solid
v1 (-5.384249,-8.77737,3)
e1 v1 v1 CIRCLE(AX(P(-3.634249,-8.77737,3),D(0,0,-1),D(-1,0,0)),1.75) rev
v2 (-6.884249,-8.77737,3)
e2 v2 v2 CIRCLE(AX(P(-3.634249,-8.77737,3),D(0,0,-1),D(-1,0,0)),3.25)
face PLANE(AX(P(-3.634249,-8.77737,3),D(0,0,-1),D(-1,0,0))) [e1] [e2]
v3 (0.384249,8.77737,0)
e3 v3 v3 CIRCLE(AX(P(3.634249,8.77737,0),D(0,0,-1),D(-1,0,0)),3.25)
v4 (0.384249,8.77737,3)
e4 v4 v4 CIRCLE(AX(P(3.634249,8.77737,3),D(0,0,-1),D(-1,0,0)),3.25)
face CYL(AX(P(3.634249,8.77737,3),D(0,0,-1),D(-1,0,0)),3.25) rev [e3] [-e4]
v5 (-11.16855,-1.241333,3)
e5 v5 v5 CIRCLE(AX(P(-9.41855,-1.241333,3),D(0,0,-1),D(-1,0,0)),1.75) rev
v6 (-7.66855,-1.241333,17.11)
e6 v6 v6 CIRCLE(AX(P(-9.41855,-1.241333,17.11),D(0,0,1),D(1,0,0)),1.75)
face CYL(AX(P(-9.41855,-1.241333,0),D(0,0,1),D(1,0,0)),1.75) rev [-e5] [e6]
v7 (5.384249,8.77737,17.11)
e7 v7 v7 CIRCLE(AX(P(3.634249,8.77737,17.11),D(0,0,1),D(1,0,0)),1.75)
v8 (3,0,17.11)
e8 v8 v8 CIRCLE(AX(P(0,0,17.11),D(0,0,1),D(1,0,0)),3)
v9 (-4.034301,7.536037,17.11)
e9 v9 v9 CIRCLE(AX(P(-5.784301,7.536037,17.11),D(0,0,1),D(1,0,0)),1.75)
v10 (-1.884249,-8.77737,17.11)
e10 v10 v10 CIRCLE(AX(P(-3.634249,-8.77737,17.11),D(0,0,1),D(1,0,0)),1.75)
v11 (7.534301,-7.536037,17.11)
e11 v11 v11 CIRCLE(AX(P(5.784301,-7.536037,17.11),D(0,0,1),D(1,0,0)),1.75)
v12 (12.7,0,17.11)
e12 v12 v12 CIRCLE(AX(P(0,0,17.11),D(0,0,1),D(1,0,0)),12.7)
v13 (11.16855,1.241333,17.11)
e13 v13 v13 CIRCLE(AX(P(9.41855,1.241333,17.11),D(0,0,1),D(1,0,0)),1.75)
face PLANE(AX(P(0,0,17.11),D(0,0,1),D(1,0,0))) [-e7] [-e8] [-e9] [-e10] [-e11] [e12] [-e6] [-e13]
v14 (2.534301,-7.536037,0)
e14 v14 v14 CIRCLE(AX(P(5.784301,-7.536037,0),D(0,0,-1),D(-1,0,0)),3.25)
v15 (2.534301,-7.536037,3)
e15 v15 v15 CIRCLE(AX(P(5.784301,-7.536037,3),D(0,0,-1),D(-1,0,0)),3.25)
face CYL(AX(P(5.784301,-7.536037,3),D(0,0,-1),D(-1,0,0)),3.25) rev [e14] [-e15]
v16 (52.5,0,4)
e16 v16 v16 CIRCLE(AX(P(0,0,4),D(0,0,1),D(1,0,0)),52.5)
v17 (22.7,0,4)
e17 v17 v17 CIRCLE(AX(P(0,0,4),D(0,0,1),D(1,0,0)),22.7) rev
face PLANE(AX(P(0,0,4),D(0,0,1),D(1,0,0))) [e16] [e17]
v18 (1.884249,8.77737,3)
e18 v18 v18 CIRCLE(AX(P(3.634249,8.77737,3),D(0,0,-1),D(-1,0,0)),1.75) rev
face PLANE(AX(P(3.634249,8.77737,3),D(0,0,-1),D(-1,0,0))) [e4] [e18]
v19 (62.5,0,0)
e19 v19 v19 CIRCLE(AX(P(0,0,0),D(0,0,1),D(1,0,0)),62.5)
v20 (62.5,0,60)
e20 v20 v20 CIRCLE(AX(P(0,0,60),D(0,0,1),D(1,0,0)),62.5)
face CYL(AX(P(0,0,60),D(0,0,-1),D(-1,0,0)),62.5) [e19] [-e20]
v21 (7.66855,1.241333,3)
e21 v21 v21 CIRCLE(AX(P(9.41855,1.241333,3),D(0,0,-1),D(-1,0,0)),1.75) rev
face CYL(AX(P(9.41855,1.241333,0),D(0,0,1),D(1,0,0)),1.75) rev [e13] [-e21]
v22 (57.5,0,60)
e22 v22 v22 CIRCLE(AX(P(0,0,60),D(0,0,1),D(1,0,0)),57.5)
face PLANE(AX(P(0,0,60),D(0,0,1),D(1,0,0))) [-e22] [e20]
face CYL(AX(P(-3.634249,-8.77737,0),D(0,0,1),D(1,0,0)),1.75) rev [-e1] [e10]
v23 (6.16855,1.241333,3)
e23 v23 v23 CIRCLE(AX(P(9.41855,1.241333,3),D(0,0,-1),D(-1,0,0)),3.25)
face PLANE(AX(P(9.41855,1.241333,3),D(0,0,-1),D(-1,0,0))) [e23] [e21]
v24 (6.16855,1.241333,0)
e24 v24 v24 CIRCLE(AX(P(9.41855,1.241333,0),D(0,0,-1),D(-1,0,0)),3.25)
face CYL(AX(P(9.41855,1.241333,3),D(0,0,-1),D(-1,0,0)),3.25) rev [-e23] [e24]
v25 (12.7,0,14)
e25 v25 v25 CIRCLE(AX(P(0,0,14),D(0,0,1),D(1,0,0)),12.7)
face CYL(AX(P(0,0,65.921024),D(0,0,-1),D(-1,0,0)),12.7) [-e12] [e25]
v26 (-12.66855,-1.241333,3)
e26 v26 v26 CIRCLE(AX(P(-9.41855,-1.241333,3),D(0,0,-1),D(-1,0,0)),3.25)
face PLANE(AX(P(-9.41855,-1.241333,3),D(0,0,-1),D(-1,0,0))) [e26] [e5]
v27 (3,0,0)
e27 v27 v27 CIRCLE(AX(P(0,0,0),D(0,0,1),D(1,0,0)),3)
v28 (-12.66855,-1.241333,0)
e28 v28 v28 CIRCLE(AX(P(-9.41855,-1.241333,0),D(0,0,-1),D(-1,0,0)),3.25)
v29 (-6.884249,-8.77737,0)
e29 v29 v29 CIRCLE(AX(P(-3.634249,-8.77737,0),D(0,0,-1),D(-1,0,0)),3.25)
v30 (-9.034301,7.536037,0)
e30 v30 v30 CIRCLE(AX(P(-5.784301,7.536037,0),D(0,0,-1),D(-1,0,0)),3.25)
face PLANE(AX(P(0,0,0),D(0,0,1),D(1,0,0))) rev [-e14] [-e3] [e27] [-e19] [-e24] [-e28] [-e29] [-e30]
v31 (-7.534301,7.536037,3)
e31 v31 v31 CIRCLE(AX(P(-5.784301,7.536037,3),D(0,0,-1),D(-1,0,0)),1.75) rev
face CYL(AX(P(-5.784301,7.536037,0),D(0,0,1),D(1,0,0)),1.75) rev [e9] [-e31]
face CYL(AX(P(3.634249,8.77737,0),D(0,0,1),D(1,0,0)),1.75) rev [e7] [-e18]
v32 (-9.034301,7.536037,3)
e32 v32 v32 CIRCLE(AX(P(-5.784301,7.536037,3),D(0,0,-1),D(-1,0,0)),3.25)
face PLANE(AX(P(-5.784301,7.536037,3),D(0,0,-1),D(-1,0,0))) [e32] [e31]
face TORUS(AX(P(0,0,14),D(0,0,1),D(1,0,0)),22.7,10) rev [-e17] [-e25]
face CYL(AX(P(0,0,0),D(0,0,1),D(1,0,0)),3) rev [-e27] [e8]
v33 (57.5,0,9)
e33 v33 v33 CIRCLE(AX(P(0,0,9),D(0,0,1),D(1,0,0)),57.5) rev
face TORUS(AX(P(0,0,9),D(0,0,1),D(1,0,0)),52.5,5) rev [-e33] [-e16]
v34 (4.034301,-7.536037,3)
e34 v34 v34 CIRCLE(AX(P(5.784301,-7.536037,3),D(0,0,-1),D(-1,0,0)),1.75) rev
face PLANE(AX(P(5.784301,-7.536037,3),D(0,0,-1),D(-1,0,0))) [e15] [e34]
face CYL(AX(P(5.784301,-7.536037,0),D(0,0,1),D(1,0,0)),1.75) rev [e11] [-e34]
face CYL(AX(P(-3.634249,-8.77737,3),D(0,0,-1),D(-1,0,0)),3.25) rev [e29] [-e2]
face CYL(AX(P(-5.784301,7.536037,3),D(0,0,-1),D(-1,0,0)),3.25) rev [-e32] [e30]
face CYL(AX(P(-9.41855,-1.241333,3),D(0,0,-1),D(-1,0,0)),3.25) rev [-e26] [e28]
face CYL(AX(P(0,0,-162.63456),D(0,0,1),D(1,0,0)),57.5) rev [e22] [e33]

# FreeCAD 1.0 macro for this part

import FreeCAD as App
import Part
import Sketcher

V = App.Vector
Q = App.Units.Quantity


def edges_at(feature, points):
    """Names of the edges that pass closest to the given points."""
    edges = feature.Shape.Edges
    near = lambda p: min(range(len(edges)), key=lambda i: edges[i].distToShape(Part.Vertex(*p))[0])
    return sorted({f"Edge{near(p) + 1}" for p in points})

doc = App.newDocument("Part")
body = doc.addObject("PartDesign::Body", "Body")

# Sketch on XY plane
sketch1 = body.newObject("Sketcher::SketchObject", "Sketch")
sketch1.AttachmentSupport = (doc.getObject("XY_Plane"), [""])
sketch1.MapMode = "FlatFace"
sketch1.addGeometry(Part.Circle(V(0, 0, 0), V(0, 0, 1), 62.5), False)
sketch1.addConstraint([
    Sketcher.Constraint("Coincident", 0, 3, -1, 1),
    Sketcher.Constraint("Diameter", 0, Q("125 mm")),
])
pad1 = body.newObject("PartDesign::Pad", "Pad")
pad1.Profile = sketch1
pad1.Length = 60

# Sketch on XY plane
sketch2 = body.newObject("Sketcher::SketchObject", "Sketch001")
sketch2.AttachmentSupport = (doc.getObject("XY_Plane"), [""])
sketch2.MapMode = "FlatFace"
sketch2.AttachmentOffset = App.Placement(V(0, 0, 60), App.Rotation())
sketch2.addGeometry(Part.Circle(V(0, 0, 0), V(0, 0, 1), 57.5), False)
sketch2.addConstraint([
    Sketcher.Constraint("Coincident", 0, 3, -1, 1),
    Sketcher.Constraint("Diameter", 0, Q("115 mm")),
])
pocket1 = body.newObject("PartDesign::Pocket", "Pocket")
pocket1.Profile = sketch2
pocket1.Length = 56

# Sketch on XY plane
sketch3 = body.newObject("Sketcher::SketchObject", "Sketch002")
sketch3.AttachmentSupport = (doc.getObject("XY_Plane"), [""])
sketch3.MapMode = "FlatFace"
sketch3.AttachmentOffset = App.Placement(V(0, 0, 4), App.Rotation())
sketch3.addGeometry(Part.Circle(V(0, 0, 0), V(0, 0, 1), 12.7), False)
sketch3.addConstraint([
    Sketcher.Constraint("Coincident", 0, 3, -1, 1),
    Sketcher.Constraint("Diameter", 0, Q("25.4 mm")),
])
pad2 = body.newObject("PartDesign::Pad", "Pad001")
pad2.Profile = sketch3
pad2.Length = 13.11

# Sketch on XY plane
sketch4 = body.newObject("Sketcher::SketchObject", "Sketch003")
sketch4.AttachmentSupport = (doc.getObject("XY_Plane"), [""])
sketch4.MapMode = "FlatFace"
sketch4.AttachmentOffset = App.Placement(V(0, 0, 17.11), App.Rotation())
sketch4.addGeometry([
    Part.Circle(V(-5.784301, 7.536037, 0), V(0, 0, 1), 1.75),  # 0
    Part.Circle(V(-9.41855, -1.241333, 0), V(0, 0, 1), 1.75),  # 1
    Part.Circle(V(-3.634249, -8.77737, 0), V(0, 0, 1), 1.75),  # 2
    Part.Circle(V(5.784301, -7.536037, 0), V(0, 0, 1), 1.75),  # 3
    Part.Circle(V(9.41855, 1.241333, 0), V(0, 0, 1), 1.75),  # 4
    Part.Circle(V(3.634249, 8.77737, 0), V(0, 0, 1), 1.75),  # 5
    Part.Circle(V(0, 0, 0), V(0, 0, 1), 3),  # 6
], False)
sketch4.addConstraint([
    Sketcher.Constraint("Coincident", 6, 3, -1, 1),
    Sketcher.Constraint("Equal", 0, 1),
    Sketcher.Constraint("Equal", 1, 2),
    Sketcher.Constraint("Equal", 2, 3),
    Sketcher.Constraint("Equal", 3, 4),
    Sketcher.Constraint("Equal", 4, 5),
    Sketcher.Constraint("Symmetric", 0, 3, 3, 3, -1, 1),
    Sketcher.Constraint("Symmetric", 1, 3, 4, 3, -1, 1),
    Sketcher.Constraint("Symmetric", 2, 3, 5, 3, -1, 1),
    Sketcher.Constraint("Diameter", 6, Q("6 mm")),
    Sketcher.Constraint("Diameter", 0, Q("3.5 mm")),
    Sketcher.Constraint("DistanceX", 0, 3, -1, 1, Q("5.784301 mm")),
    Sketcher.Constraint("DistanceX", 1, 3, 2, 3, Q("5.784301 mm")),
    Sketcher.Constraint("DistanceX", 2, 3, 4, 3, Q("13.0528 mm")),
    Sketcher.Constraint("DistanceY", 2, 3, -1, 1, Q("8.77737 mm")),
    Sketcher.Constraint("DistanceY", 1, 3, 0, 3, Q("8.77737 mm")),
    Sketcher.Constraint("DistanceY", -1, 1, 0, 3, Q("7.536037 mm")),
])
pocket2 = body.newObject("PartDesign::Pocket", "Pocket001")
pocket2.Profile = sketch4
pocket2.Type = "ThroughAll"

# Sketch on XY plane
sketch5 = body.newObject("Sketcher::SketchObject", "Sketch004")
sketch5.AttachmentSupport = (doc.getObject("XY_Plane"), [""])
sketch5.MapMode = "FlatFace"
sketch5.addGeometry([
    Part.Circle(V(9.41855, 1.241333, 0), V(0, 0, 1), 3.25),  # 0
    Part.Circle(V(3.634249, 8.77737, 0), V(0, 0, 1), 3.25),  # 1
    Part.Circle(V(-5.784301, 7.536037, 0), V(0, 0, 1), 3.25),  # 2
    Part.Circle(V(-9.41855, -1.241333, 0), V(0, 0, 1), 3.25),  # 3
    Part.Circle(V(-3.634249, -8.77737, 0), V(0, 0, 1), 3.25),  # 4
    Part.Circle(V(5.784301, -7.536037, 0), V(0, 0, 1), 3.25),  # 5
], False)
sketch5.addConstraint([
    Sketcher.Constraint("Equal", 0, 1),
    Sketcher.Constraint("Equal", 1, 2),
    Sketcher.Constraint("Equal", 2, 3),
    Sketcher.Constraint("Equal", 3, 4),
    Sketcher.Constraint("Equal", 4, 5),
    Sketcher.Constraint("Symmetric", 0, 3, 3, 3, -1, 1),
    Sketcher.Constraint("Symmetric", 1, 3, 4, 3, -1, 1),
    Sketcher.Constraint("Symmetric", 2, 3, 5, 3, -1, 1),
    Sketcher.Constraint("Diameter", 0, Q("6.5 mm")),
    Sketcher.Constraint("DistanceX", 2, 3, -1, 1, Q("5.784301 mm")),
    Sketcher.Constraint("DistanceX", 1, 3, 0, 3, Q("5.784301 mm")),
    Sketcher.Constraint("DistanceX", 3, 3, 1, 3, Q("13.0528 mm")),
    Sketcher.Constraint("DistanceY", -1, 1, 1, 3, Q("8.77737 mm")),
    Sketcher.Constraint("DistanceY", 3, 3, 2, 3, Q("8.77737 mm")),
    Sketcher.Constraint("DistanceY", -1, 1, 0, 3, Q("1.241333 mm")),
])
pocket3 = body.newObject("PartDesign::Pocket", "Pocket002")
pocket3.Profile = sketch5
pocket3.Length = 3
pocket3.Reversed = True
doc.recompute()

fillet = body.newObject("PartDesign::Fillet", "Fillet")
fillet.Base = (pocket3, edges_at(pocket3, [(-57.5, 0, 4)]))
fillet.Radius = 5
doc.recompute()

fillet2 = body.newObject("PartDesign::Fillet", "Fillet001")
fillet2.Base = (fillet, edges_at(fillet, [(-12.7, 0, 4)]))
fillet2.Radius = 10

doc.recompute()
